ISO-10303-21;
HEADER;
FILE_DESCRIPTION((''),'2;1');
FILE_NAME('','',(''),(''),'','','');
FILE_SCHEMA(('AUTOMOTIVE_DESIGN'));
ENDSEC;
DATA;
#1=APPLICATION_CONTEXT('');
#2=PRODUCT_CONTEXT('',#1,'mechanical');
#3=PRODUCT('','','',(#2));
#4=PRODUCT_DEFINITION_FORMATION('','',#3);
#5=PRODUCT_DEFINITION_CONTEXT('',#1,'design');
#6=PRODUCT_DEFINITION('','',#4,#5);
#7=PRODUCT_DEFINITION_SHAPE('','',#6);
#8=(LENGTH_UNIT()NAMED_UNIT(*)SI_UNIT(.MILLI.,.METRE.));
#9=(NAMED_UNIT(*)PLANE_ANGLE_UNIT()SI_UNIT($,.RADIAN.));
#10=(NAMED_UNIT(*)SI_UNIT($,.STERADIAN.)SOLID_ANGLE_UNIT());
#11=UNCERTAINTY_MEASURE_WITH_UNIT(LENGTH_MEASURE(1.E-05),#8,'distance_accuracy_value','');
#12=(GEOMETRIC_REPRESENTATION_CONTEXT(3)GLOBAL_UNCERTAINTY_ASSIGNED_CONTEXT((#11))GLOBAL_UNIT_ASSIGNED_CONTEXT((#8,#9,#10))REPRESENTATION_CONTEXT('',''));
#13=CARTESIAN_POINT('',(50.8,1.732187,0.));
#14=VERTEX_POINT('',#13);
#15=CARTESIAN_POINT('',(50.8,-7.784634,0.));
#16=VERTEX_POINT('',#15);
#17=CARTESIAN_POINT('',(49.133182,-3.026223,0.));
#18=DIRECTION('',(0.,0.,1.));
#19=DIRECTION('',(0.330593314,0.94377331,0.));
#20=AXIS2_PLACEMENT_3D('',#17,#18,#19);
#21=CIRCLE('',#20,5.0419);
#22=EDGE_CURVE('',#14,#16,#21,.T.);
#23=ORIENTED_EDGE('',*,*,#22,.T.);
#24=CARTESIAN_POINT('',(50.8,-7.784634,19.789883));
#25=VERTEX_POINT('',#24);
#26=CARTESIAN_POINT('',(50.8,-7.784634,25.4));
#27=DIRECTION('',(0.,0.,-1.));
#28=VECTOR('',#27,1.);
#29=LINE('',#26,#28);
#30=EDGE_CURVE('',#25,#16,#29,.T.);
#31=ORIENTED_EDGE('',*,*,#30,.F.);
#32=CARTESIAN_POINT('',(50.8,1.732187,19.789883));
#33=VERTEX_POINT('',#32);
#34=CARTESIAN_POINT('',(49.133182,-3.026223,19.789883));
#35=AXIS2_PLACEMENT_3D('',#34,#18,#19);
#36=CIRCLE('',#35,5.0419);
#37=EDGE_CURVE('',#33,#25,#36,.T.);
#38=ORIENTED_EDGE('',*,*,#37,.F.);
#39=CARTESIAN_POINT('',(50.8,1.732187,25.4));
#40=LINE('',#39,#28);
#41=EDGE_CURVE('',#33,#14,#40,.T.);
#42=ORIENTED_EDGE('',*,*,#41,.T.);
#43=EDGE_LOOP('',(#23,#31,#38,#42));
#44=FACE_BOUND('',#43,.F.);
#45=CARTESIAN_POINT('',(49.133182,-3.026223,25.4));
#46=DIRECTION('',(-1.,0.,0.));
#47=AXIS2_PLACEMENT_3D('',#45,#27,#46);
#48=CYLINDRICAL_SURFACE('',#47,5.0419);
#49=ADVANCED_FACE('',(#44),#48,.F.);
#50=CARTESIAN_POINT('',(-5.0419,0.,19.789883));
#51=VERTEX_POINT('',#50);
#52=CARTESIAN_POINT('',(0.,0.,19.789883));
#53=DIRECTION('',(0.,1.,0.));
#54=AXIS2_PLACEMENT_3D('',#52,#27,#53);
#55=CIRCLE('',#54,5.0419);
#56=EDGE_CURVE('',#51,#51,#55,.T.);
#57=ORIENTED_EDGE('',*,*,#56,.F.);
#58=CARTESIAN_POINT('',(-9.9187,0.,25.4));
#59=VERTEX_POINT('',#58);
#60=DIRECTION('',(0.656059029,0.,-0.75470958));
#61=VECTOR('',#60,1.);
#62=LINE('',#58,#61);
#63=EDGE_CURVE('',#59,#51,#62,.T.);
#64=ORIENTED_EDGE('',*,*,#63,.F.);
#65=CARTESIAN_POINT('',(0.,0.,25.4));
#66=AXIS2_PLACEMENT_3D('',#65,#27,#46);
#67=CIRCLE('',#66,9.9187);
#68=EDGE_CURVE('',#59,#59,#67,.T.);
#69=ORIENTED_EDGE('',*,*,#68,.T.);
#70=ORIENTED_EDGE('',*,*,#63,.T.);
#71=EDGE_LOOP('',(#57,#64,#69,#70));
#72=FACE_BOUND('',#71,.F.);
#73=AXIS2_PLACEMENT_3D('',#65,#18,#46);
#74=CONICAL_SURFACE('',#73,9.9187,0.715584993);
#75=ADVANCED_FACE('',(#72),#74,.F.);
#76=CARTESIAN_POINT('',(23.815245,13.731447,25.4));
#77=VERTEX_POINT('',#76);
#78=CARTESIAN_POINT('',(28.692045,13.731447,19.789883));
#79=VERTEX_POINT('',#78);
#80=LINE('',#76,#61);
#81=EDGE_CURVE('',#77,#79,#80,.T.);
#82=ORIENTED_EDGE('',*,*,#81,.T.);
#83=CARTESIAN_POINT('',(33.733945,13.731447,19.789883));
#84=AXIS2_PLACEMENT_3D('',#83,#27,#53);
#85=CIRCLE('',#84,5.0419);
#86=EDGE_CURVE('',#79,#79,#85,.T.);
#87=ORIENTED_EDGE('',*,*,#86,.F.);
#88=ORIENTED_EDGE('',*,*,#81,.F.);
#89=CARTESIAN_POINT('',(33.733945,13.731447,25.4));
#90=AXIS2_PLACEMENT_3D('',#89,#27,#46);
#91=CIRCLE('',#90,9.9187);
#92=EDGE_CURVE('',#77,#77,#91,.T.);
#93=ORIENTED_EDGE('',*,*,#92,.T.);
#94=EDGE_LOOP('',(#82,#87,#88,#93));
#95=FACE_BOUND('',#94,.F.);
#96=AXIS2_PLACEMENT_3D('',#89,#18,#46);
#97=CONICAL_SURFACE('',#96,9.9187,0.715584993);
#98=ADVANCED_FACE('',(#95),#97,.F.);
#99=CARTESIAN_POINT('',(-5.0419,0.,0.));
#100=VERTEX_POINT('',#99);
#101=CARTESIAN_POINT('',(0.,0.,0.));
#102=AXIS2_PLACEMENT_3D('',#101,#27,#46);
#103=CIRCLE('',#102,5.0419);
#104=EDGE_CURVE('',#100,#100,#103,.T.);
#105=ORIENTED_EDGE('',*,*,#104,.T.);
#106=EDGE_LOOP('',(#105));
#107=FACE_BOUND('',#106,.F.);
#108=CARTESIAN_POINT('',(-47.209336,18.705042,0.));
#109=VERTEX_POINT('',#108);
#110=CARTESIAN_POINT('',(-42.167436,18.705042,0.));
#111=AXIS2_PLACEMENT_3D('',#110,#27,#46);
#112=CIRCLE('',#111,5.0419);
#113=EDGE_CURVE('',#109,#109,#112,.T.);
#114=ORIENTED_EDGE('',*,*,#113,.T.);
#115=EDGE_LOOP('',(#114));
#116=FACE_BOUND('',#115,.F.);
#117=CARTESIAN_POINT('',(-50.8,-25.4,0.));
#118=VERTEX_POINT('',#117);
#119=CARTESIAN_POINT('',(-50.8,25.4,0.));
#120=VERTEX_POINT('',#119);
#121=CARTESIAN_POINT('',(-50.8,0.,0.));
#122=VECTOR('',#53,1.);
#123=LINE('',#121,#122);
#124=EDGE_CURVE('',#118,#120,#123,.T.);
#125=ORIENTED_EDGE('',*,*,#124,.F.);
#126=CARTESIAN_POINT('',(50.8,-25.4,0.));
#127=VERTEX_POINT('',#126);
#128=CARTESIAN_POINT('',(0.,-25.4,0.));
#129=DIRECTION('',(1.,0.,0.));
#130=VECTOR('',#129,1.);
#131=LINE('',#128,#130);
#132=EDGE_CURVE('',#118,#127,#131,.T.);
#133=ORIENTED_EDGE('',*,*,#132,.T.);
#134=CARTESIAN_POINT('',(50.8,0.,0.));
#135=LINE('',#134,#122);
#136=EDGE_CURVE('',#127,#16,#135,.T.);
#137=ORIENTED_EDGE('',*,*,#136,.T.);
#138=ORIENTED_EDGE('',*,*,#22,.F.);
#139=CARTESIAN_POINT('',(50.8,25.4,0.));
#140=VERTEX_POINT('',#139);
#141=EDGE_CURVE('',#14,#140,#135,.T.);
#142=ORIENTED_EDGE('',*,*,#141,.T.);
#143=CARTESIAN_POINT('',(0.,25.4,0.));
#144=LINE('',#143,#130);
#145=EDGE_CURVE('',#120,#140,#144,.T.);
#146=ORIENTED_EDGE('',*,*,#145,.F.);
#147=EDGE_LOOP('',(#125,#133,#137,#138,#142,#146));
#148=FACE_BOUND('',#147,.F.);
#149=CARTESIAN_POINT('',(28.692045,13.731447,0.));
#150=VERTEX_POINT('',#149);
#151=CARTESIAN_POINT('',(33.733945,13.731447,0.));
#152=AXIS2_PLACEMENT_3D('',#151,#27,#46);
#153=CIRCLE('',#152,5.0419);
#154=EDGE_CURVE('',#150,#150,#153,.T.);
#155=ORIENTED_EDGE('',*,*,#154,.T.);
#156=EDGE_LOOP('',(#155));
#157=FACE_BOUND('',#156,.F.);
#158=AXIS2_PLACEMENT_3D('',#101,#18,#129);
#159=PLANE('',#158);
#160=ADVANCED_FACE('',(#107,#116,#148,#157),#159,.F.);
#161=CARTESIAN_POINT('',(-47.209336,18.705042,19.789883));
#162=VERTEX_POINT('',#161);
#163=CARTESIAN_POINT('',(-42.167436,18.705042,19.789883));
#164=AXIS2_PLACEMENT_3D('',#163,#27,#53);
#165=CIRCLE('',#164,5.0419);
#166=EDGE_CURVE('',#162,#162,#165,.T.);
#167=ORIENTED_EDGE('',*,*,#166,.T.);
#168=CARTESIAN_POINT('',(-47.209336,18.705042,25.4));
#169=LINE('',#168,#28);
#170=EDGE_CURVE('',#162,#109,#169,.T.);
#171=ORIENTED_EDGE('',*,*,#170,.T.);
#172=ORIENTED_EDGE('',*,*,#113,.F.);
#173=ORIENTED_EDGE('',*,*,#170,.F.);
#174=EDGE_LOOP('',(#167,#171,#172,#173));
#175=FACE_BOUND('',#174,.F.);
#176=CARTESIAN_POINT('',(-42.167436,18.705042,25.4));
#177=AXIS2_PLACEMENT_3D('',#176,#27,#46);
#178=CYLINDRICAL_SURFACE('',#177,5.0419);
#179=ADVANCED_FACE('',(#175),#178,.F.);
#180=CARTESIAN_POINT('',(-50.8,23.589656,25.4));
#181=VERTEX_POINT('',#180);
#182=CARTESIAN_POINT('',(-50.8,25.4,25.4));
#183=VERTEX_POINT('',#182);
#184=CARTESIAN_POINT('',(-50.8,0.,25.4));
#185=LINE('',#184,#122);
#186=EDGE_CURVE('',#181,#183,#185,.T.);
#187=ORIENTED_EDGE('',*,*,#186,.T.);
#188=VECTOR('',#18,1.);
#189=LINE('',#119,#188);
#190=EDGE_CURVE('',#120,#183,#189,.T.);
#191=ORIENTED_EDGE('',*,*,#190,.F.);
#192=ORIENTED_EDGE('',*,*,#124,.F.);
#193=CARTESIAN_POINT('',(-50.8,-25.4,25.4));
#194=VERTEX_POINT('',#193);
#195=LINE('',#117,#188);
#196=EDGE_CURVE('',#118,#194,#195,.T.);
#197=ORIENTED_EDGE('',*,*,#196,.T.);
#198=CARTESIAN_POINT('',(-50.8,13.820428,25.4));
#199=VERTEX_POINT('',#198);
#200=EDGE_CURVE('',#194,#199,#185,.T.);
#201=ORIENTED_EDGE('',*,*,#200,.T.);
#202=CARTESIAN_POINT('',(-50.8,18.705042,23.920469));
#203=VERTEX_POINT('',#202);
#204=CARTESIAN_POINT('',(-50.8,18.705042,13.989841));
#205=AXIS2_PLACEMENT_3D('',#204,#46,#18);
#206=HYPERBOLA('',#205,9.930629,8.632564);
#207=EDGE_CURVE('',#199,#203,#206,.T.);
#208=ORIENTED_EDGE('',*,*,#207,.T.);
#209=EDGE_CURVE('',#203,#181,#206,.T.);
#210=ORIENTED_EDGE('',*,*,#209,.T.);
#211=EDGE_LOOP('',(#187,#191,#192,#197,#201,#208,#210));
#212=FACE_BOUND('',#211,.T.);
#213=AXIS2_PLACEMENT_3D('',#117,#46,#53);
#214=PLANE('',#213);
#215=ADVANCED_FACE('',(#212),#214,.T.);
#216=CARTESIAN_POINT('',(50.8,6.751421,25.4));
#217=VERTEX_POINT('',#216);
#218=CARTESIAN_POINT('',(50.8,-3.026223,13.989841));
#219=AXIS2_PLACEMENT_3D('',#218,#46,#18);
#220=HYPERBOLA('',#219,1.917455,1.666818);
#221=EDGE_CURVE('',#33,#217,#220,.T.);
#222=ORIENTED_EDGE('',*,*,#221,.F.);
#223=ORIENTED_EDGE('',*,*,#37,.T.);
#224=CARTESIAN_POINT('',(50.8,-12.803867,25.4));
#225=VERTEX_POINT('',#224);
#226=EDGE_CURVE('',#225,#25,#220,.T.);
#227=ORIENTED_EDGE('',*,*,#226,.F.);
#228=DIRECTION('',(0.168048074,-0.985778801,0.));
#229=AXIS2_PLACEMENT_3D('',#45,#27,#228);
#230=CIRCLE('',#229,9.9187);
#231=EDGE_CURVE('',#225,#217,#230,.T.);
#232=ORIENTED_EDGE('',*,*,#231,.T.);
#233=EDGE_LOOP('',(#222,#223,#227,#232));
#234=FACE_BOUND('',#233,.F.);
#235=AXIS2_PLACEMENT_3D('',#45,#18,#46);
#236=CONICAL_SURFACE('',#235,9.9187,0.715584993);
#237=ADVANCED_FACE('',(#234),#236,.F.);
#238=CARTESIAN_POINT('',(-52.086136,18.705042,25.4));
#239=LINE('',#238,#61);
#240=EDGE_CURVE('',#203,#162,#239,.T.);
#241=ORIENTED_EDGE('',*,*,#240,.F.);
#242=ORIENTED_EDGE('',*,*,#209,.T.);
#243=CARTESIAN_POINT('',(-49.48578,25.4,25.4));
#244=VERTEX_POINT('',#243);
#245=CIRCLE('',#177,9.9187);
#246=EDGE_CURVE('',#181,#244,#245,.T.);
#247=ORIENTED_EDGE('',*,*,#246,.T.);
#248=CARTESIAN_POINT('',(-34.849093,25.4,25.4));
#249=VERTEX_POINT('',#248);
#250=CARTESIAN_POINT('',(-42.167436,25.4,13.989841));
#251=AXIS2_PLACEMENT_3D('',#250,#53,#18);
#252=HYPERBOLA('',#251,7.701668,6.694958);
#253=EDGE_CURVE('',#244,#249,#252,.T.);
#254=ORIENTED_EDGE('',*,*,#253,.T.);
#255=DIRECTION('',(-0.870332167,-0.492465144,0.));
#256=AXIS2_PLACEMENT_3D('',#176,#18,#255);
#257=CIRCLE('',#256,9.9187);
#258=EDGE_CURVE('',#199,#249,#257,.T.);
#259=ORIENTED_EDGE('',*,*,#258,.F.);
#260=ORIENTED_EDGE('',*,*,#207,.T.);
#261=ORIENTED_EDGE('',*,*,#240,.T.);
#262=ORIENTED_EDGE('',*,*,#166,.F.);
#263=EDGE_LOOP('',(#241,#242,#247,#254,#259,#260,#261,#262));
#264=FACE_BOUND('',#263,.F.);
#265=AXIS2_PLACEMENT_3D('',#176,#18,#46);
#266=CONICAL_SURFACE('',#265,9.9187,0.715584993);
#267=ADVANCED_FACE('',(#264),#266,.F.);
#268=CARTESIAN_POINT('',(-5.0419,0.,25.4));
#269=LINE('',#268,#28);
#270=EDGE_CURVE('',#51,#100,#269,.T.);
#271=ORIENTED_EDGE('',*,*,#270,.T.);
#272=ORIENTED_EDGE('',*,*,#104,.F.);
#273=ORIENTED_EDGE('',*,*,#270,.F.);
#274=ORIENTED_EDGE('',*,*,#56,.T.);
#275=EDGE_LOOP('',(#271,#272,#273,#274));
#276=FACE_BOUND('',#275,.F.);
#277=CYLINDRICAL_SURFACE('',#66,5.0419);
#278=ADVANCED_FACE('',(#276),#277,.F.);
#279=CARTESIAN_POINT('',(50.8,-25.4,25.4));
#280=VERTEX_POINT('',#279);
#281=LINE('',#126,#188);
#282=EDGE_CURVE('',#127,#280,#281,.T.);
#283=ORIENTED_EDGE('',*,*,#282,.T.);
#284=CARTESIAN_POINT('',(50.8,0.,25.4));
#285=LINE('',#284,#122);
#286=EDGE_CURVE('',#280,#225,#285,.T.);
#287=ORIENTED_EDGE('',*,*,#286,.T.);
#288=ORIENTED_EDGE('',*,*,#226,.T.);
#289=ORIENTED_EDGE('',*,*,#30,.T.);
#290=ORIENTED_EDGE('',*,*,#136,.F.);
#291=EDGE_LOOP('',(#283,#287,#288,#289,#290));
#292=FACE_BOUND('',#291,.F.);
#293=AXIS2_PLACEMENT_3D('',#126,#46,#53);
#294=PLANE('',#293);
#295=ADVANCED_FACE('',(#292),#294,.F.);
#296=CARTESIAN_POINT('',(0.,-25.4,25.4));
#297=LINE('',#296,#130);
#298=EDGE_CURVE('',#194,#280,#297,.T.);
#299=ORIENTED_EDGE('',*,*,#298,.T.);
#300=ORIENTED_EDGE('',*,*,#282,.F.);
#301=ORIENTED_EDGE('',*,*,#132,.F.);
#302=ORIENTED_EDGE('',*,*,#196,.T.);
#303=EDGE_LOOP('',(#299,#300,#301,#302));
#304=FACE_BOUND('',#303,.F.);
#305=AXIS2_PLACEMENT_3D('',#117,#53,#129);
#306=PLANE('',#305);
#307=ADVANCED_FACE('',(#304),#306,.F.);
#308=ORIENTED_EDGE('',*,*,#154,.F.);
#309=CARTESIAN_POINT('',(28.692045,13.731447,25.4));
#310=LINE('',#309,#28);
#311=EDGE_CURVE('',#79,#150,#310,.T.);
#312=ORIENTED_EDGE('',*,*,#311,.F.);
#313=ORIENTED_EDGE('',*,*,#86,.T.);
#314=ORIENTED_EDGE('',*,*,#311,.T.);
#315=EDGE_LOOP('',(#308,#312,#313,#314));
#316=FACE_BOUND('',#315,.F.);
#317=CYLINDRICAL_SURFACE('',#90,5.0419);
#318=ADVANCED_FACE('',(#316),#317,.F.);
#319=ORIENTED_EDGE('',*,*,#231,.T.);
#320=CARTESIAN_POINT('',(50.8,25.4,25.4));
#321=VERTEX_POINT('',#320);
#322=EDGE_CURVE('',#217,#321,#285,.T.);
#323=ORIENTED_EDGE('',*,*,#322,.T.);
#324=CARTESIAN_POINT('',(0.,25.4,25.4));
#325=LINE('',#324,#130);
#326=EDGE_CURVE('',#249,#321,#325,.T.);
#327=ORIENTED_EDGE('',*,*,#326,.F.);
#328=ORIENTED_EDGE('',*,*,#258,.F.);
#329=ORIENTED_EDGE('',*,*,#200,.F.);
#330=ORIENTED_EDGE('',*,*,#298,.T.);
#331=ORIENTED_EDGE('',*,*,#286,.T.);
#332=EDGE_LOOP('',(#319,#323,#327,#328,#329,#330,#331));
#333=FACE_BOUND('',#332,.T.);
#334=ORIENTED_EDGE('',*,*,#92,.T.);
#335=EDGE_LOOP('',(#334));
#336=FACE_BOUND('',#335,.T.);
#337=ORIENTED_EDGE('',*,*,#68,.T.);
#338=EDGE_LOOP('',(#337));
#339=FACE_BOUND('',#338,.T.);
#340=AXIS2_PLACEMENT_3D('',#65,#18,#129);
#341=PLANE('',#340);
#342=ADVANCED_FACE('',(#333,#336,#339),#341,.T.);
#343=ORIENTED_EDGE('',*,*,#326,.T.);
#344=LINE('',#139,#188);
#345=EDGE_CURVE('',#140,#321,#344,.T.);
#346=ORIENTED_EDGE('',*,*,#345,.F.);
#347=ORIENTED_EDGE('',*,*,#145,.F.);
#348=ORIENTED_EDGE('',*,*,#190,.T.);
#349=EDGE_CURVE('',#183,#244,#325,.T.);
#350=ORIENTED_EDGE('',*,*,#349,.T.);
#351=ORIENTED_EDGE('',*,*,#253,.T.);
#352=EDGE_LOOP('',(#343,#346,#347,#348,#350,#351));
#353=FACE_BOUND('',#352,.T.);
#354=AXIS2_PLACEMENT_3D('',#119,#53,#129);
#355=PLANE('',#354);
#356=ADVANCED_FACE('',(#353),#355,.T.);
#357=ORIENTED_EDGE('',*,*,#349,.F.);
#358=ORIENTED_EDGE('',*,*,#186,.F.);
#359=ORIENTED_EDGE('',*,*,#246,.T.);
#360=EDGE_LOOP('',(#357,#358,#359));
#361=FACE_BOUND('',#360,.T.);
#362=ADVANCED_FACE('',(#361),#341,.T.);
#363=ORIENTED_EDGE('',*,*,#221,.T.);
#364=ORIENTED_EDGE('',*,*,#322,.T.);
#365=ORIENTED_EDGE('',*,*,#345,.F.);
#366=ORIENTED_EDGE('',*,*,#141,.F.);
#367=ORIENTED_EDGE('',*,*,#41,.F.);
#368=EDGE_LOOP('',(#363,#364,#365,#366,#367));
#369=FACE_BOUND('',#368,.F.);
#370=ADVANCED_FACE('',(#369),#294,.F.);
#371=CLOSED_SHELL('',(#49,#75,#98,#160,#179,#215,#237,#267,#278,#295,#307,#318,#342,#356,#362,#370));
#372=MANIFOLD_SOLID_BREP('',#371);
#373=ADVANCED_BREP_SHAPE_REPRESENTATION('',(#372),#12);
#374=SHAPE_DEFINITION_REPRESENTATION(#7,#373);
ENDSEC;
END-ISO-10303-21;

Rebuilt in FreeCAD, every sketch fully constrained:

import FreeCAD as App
import Part
import Sketcher
from FreeCAD import Vector
Q = App.Units.Quantity


def add_polygon(sketch, points):
    """Adds a closed chain of lines whose ends are joined by coincident constraints."""
    first, n = sketch.GeometryCount, len(points)
    for a, b in zip(points, points[1:] + points[:1]):
        sketch.addGeometry(Part.LineSegment(App.Vector(*a, 0), App.Vector(*b, 0)), False)
    for i in range(n):
        sketch.addConstraint(Sketcher.Constraint("Coincident", first + i, 2, first + (i + 1) % n, 1))

doc = App.newDocument("Part")
body = doc.addObject("PartDesign::Body", "Body")

# Sketch on XY plane
sketch1 = body.newObject("Sketcher::SketchObject", "Sketch")
sketch1.AttachmentSupport = (doc.getObject("XY_Plane"), [""])
sketch1.MapMode = "FlatFace"
add_polygon(sketch1, [(-50.8, 25.4), (-50.8, -25.4), (50.8, -25.4), (50.8, 25.4)])  # lines 0-3
sketch1.addConstraint(Sketcher.Constraint("Vertical", 0))
sketch1.addConstraint(Sketcher.Constraint("Horizontal", 1))
sketch1.addConstraint(Sketcher.Constraint("Vertical", 2))
sketch1.addConstraint(Sketcher.Constraint("Horizontal", 3))
sketch1.addConstraint(Sketcher.Constraint("Symmetric", 0, 2, 2, 2, -1, 1))
sketch1.addConstraint(Sketcher.Constraint("DistanceX", 1, 1, 1, 2, Q("4 in")))
sketch1.addConstraint(Sketcher.Constraint("DistanceY", 0, 2, 0, 1, Q("2 in")))
pad1 = body.newObject("PartDesign::Pad", "Pad")
pad1.Profile = sketch1
pad1.Length = Q("1 in")

# Sketch on XY plane
sketch2 = body.newObject("Sketcher::SketchObject", "Sketch001")
sketch2.AttachmentSupport = (doc.getObject("XY_Plane"), [""])
sketch2.MapMode = "FlatFace"
sketch2.AttachmentOffset = App.Placement(Vector(0, 0, 1 * 25.4), App.Rotation())
sketch2.addGeometry(Part.Circle(Vector(-42.167436, 18.705042, 0), Vector(0, 0, 1), 5.0419), False)
sketch2.addGeometry(Part.Circle(Vector(0, 0, 0), Vector(0, 0, 1), 5.0419), False)
sketch2.addGeometry(Part.Circle(Vector(33.733945, 13.731447, 0), Vector(0, 0, 1), 5.0419), False)
sketch2.addGeometry(Part.Circle(Vector(49.133182, -3.026223, 0), Vector(0, 0, 1), 5.0419), False)
sketch2.addConstraint(Sketcher.Constraint("Coincident", 1, 3, -1, 1))
sketch2.addConstraint(Sketcher.Constraint("Equal", 0, 1))
sketch2.addConstraint(Sketcher.Constraint("Equal", 1, 2))
sketch2.addConstraint(Sketcher.Constraint("Equal", 2, 3))
sketch2.addConstraint(Sketcher.Constraint("Diameter", 0, Q("0.397 in")))
sketch2.addConstraint(Sketcher.Constraint("DistanceX", -1, 1, 3, 3, 49.133182))
sketch2.addConstraint(Sketcher.Constraint("DistanceX", 0, 3, 2, 3, 75.901382))
sketch2.addConstraint(Sketcher.Constraint("DistanceY", 3, 3, 2, 3, 16.75767))
sketch2.addConstraint(Sketcher.Constraint("DistanceX", 0, 3, -1, 1, 42.167436))
sketch2.addConstraint(Sketcher.Constraint("DistanceY", -1, 1, 0, 3, 18.705042))
sketch2.addConstraint(Sketcher.Constraint("DistanceY", -1, 1, 2, 3, 13.731447))
doc.recompute()
hole = body.newObject("PartDesign::Hole", "Hole")
hole.Profile = sketch2
hole.ThreadType = "None"
hole.Diameter = Q("0.397 in")
hole.DepthType = "ThroughAll"
hole.HoleCutType = "Countersink"
hole.HoleCutDiameter = Q("0.781 in")
hole.HoleCutCountersinkAngle = 82

doc.recompute()
